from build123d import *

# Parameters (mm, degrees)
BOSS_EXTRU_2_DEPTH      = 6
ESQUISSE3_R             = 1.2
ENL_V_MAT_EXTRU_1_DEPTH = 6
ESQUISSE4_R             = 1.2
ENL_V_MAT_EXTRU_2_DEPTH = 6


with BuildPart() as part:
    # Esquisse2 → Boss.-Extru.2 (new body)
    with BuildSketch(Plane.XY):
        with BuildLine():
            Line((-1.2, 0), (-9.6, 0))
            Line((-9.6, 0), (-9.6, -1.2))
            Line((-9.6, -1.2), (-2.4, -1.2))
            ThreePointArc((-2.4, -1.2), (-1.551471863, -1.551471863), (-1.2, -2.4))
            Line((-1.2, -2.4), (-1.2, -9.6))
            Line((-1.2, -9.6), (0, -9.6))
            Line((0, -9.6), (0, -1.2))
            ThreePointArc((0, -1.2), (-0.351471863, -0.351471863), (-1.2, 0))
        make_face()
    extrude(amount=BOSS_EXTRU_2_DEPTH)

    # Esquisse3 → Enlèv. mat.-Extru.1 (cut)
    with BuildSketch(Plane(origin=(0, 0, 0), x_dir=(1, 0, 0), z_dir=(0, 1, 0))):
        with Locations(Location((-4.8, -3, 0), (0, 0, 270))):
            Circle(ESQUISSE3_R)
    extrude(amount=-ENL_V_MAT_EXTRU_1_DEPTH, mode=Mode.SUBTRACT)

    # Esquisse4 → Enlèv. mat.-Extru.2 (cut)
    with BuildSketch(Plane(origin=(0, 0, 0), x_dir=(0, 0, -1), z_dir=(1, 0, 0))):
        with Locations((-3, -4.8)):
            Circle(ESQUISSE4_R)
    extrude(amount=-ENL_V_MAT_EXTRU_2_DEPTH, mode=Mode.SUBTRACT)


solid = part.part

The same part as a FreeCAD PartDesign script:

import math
import FreeCAD as App
import Part
import Sketcher

V = App.Vector
Q = App.Units.Quantity

doc = App.newDocument("Part")
body = doc.addObject("PartDesign::Body", "Body")

# Sketch on XY plane
sketch1 = body.newObject("Sketcher::SketchObject", "Sketch")
sketch1.AttachmentSupport = (doc.getObject("XY_Plane"), [""])
sketch1.MapMode = "FlatFace"
sketch1.addGeometry(Part.LineSegment(V(-1.2, 0, 0), V(-9.6, 0, 0)), False)
sketch1.addGeometry(Part.LineSegment(V(-9.6, 0, 0), V(-9.6, -1.2, 0)), False)
sketch1.addGeometry(Part.LineSegment(V(-9.6, -1.2, 0), V(-2.4, -1.2, 0)), False)
sketch1.addGeometry(Part.ArcOfCircle(Part.Circle(V(-2.4, -2.4, 0), V(0, 0, 1), 1.2), math.radians(0), math.radians(90)), False)
sketch1.addGeometry(Part.LineSegment(V(-1.2, -2.4, 0), V(-1.2, -9.6, 0)), False)
sketch1.addGeometry(Part.LineSegment(V(-1.2, -9.6, 0), V(0, -9.6, 0)), False)
sketch1.addGeometry(Part.LineSegment(V(0, -9.6, 0), V(0, -1.2, 0)), False)
sketch1.addGeometry(Part.ArcOfCircle(Part.Circle(V(-1.2, -1.2, 0), V(0, 0, 1), 1.2), math.radians(0), math.radians(90)), False)
sketch1.addConstraint(Sketcher.Constraint("Coincident", 0, 2, 1, 1))
sketch1.addConstraint(Sketcher.Constraint("Coincident", 1, 2, 2, 1))
sketch1.addConstraint(Sketcher.Constraint("Tangent", 2, 2, 3, 2))
sketch1.addConstraint(Sketcher.Constraint("Tangent", 3, 1, 4, 1))
sketch1.addConstraint(Sketcher.Constraint("Coincident", 4, 2, 5, 1))
sketch1.addConstraint(Sketcher.Constraint("Coincident", 5, 2, 6, 1))
sketch1.addConstraint(Sketcher.Constraint("Tangent", 6, 2, 7, 1))
sketch1.addConstraint(Sketcher.Constraint("Tangent", 7, 2, 0, 1))
sketch1.addConstraint(Sketcher.Constraint("Horizontal", 0))
sketch1.addConstraint(Sketcher.Constraint("Vertical", 1))
sketch1.addConstraint(Sketcher.Constraint("Horizontal", 2))
sketch1.addConstraint(Sketcher.Constraint("Vertical", 4))
sketch1.addConstraint(Sketcher.Constraint("Horizontal", 5))
sketch1.addConstraint(Sketcher.Constraint("Vertical", 6))
sketch1.addConstraint(Sketcher.Constraint("Equal", 3, 7))
sketch1.addConstraint(Sketcher.Constraint("PointOnObject", 0, 2, -1))
sketch1.addConstraint(Sketcher.Constraint("PointOnObject", 5, 2, -2))
sketch1.addConstraint(Sketcher.Constraint("Horizontal", 7, 3, 1, 2))
sketch1.addConstraint(Sketcher.Constraint("Vertical", 7, 3, 3, 1))
sketch1.addConstraint(Sketcher.Constraint("Equal", 2, 4))
sketch1.addConstraint(Sketcher.Constraint("Radius", 3, Q("1.2 mm")))
sketch1.addConstraint(Sketcher.Constraint("DistanceX", 0, 2, 0, 1, Q("8.4 mm")))
pad1 = body.newObject("PartDesign::Pad", "Pad")
pad1.Profile = sketch1
pad1.Length = 6

# Sketch on XZ plane
sketch2 = body.newObject("Sketcher::SketchObject", "Sketch001")
sketch2.AttachmentSupport = (doc.getObject("XZ_Plane"), [""])
sketch2.MapMode = "FlatFace"
sketch2.addGeometry(Part.Circle(V(-4.8, 3, 0), V(0, 0, 1), 1.2), False)
sketch2.addConstraint(Sketcher.Constraint("Diameter", 0, Q("2.4 mm")))
sketch2.addConstraint(Sketcher.Constraint("DistanceY", -1, 1, 0, 3, Q("3 mm")))
sketch2.addConstraint(Sketcher.Constraint("DistanceX", 0, 3, -1, 1, Q("4.8 mm")))
pocket1 = body.newObject("PartDesign::Pocket", "Pocket")
pocket1.Profile = sketch2
pocket1.Length = 6
pocket1.Reversed = True

# Sketch on YZ plane
sketch3 = body.newObject("Sketcher::SketchObject", "Sketch002")
sketch3.AttachmentSupport = (doc.getObject("YZ_Plane"), [""])
sketch3.MapMode = "FlatFace"
sketch3.addGeometry(Part.Circle(V(-4.8, 3, 0), V(0, 0, 1), 1.2), False)
sketch3.addConstraint(Sketcher.Constraint("Diameter", 0, Q("2.4 mm")))
sketch3.addConstraint(Sketcher.Constraint("DistanceY", -1, 1, 0, 3, Q("3 mm")))
sketch3.addConstraint(Sketcher.Constraint("DistanceX", 0, 3, -1, 1, Q("4.8 mm")))
pocket2 = body.newObject("PartDesign::Pocket", "Pocket001")
pocket2.Profile = sketch3
pocket2.Length = 6

doc.recompute()
